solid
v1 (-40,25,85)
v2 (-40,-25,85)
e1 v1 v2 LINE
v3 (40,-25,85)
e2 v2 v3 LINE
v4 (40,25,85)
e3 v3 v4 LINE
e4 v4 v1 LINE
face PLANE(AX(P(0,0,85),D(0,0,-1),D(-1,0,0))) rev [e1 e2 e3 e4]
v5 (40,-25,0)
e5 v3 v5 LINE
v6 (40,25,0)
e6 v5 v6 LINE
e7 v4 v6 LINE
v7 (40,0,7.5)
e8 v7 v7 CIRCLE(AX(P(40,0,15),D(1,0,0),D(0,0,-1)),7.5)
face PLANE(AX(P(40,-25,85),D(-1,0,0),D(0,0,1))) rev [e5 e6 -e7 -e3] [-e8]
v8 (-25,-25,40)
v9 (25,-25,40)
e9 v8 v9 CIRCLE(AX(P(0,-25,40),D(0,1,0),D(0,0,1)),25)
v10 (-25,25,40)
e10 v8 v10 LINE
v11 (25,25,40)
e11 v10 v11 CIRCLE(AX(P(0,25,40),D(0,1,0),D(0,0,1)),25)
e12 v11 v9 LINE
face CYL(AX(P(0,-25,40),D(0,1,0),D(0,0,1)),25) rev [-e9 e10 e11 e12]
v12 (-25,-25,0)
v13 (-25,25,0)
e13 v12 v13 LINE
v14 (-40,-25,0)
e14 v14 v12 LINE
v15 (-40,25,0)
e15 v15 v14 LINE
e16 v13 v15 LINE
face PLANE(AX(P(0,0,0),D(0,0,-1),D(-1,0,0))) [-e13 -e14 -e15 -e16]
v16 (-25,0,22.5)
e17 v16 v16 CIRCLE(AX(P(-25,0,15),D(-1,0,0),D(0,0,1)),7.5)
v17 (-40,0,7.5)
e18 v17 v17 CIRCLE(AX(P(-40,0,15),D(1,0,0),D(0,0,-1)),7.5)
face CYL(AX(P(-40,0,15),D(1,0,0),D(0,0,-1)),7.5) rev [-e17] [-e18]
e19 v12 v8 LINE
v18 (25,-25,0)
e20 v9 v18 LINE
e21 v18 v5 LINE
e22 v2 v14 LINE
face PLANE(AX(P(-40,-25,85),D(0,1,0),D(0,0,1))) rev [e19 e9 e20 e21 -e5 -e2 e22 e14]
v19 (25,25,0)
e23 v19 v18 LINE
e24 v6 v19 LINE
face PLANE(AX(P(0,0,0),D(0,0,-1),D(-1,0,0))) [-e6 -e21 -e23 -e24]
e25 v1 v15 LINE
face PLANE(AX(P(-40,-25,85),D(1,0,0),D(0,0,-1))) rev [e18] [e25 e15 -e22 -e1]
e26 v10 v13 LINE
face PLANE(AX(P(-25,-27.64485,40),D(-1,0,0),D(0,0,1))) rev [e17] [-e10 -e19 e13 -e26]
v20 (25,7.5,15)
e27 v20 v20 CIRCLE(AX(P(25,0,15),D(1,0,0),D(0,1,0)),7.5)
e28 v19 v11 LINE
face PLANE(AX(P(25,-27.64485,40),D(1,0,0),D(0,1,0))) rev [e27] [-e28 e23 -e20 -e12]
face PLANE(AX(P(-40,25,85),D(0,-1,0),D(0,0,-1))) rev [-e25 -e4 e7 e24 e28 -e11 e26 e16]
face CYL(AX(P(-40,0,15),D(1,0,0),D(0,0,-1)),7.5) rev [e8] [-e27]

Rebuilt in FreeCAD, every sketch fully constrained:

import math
import FreeCAD as App
import Part
import Sketcher

doc = App.newDocument("Part")
body = doc.addObject("PartDesign::Body", "Body")

# Sketch on XY plane
sketch1 = body.newObject("Sketcher::SketchObject", "Sketch")
sketch1.AttachmentSupport = (doc.getObject("XY_Plane"), [""])
sketch1.MapMode = "FlatFace"
sketch1.addGeometry(Part.LineSegment(App.Vector(-40, 25, 0), App.Vector(-40, -25, 0)), False)
sketch1.addGeometry(Part.LineSegment(App.Vector(-40, -25, 0), App.Vector(40, -25, 0)), False)
sketch1.addGeometry(Part.LineSegment(App.Vector(40, -25, 0), App.Vector(40, 25, 0)), False)
sketch1.addGeometry(Part.LineSegment(App.Vector(40, 25, 0), App.Vector(-40, 25, 0)), False)
sketch1.addConstraint(Sketcher.Constraint("Coincident", 0, 2, 1, 1))
sketch1.addConstraint(Sketcher.Constraint("Coincident", 1, 2, 2, 1))
sketch1.addConstraint(Sketcher.Constraint("Coincident", 2, 2, 3, 1))
sketch1.addConstraint(Sketcher.Constraint("Coincident", 3, 2, 0, 1))
sketch1.addConstraint(Sketcher.Constraint("Vertical", 0))
sketch1.addConstraint(Sketcher.Constraint("Horizontal", 1))
sketch1.addConstraint(Sketcher.Constraint("Vertical", 2))
sketch1.addConstraint(Sketcher.Constraint("Horizontal", 3))
sketch1.addConstraint(Sketcher.Constraint("Symmetric", 0, 2, 2, 2, -1, 1))
sketch1.addConstraint(Sketcher.Constraint("DistanceX", 1, 1, 1, 2, 80.0))
sketch1.addConstraint(Sketcher.Constraint("DistanceY", 0, 2, 0, 1, 50.0))
pad1 = body.newObject("PartDesign::Pad", "Pad")
pad1.Profile = sketch1
pad1.Length = 85

# Sketch on XY plane
sketch2 = body.newObject("Sketcher::SketchObject", "Sketch001")
sketch2.AttachmentSupport = (doc.getObject("XY_Plane"), [""])
sketch2.MapMode = "FlatFace"
sketch2.addGeometry(Part.LineSegment(App.Vector(25, 28, 0), App.Vector(25, -28, 0)), False)
sketch2.addGeometry(Part.LineSegment(App.Vector(25, -28, 0), App.Vector(-25, -28, 0)), False)
sketch2.addGeometry(Part.LineSegment(App.Vector(-25, -28, 0), App.Vector(-25, 28, 0)), False)
sketch2.addGeometry(Part.LineSegment(App.Vector(-25, 28, 0), App.Vector(25, 28, 0)), False)
sketch2.addConstraint(Sketcher.Constraint("Coincident", 0, 2, 1, 1))
sketch2.addConstraint(Sketcher.Constraint("Coincident", 1, 2, 2, 1))
sketch2.addConstraint(Sketcher.Constraint("Coincident", 2, 2, 3, 1))
sketch2.addConstraint(Sketcher.Constraint("Coincident", 3, 2, 0, 1))
sketch2.addConstraint(Sketcher.Constraint("Vertical", 0))
sketch2.addConstraint(Sketcher.Constraint("Horizontal", 1))
sketch2.addConstraint(Sketcher.Constraint("Vertical", 2))
sketch2.addConstraint(Sketcher.Constraint("Horizontal", 3))
sketch2.addConstraint(Sketcher.Constraint("Symmetric", 0, 2, 2, 2, -1, 1))
sketch2.addConstraint(Sketcher.Constraint("DistanceX", 1, 2, 1, 1, 50.0))
sketch2.addConstraint(Sketcher.Constraint("DistanceY", 0, 2, 0, 1, 55.2897))
pocket1 = body.newObject("PartDesign::Pocket", "Pocket")
pocket1.Profile = sketch2
pocket1.Length = 40
pocket1.Reversed = True

# Sketch on YZ plane
sketch3 = body.newObject("Sketcher::SketchObject", "Sketch002")
sketch3.AttachmentSupport = (doc.getObject("YZ_Plane"), [""])
sketch3.MapMode = "FlatFace"
sketch3.AttachmentOffset = App.Placement(App.Vector(0, 0, 40), App.Rotation())
sketch3.addGeometry(Part.Circle(App.Vector(0, 15, 0), App.Vector(0, 0, 1), 8), False)
sketch3.addConstraint(Sketcher.Constraint("PointOnObject", 0, 3, -2))
sketch3.addConstraint(Sketcher.Constraint("Diameter", 0, 15.0))
sketch3.addConstraint(Sketcher.Constraint("DistanceY", -1, 1, 0, 3, 15.0))
pocket2 = body.newObject("PartDesign::Pocket", "Pocket001")
pocket2.Profile = sketch3
pocket2.Type = "ThroughAll"

# Sketch on XZ plane
sketch4 = body.newObject("Sketcher::SketchObject", "Sketch003")
sketch4.AttachmentSupport = (doc.getObject("XZ_Plane"), [""])
sketch4.MapMode = "FlatFace"
sketch4.AttachmentOffset = App.Placement(App.Vector(0, 0, -25), App.Rotation())
sketch4.addGeometry(Part.LineSegment(App.Vector(25, 40, 0), App.Vector(-25, 40, 0)), False)
sketch4.addGeometry(Part.ArcOfCircle(Part.Circle(App.Vector(0, 40, 0), App.Vector(0, 0, 1), 25), math.radians(0), math.radians(180)), False)
sketch4.addConstraint(Sketcher.Constraint("Coincident", 0, 1, 1, 1))
sketch4.addConstraint(Sketcher.Constraint("Coincident", 1, 2, 0, 2))
sketch4.addConstraint(Sketcher.Constraint("Horizontal", 0))
sketch4.addConstraint(Sketcher.Constraint("PointOnObject", 1, 3, -2))
sketch4.addConstraint(Sketcher.Constraint("Horizontal", 1, 3, 0, 1))
sketch4.addConstraint(Sketcher.Constraint("Radius", 1, 25.0))
sketch4.addConstraint(Sketcher.Constraint("DistanceY", -1, 1, 1, 3, 40.0))
pocket3 = body.newObject("PartDesign::Pocket", "Pocket002")
pocket3.Profile = sketch4
pocket3.Type = "ThroughAll"
pocket3.Reversed = True

doc.recompute()
